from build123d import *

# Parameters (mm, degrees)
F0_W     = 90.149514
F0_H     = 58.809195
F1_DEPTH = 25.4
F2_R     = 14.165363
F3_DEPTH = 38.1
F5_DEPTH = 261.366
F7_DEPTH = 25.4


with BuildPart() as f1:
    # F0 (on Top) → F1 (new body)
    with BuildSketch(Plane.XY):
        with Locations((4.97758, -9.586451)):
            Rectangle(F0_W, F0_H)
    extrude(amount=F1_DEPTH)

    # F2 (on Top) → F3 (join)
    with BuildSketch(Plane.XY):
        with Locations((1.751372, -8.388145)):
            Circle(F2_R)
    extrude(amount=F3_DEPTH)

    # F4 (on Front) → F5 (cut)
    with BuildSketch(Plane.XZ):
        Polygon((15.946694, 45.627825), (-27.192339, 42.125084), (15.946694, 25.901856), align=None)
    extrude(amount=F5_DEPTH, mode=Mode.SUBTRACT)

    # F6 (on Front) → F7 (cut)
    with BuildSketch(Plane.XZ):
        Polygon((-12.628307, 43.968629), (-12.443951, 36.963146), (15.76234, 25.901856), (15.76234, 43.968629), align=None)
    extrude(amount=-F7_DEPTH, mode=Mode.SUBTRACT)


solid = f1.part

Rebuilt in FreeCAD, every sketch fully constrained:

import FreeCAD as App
import Part
import Sketcher


def add_polygon(sketch, points):
    """Adds a closed chain of lines whose ends are joined by coincident constraints."""
    first, n = sketch.GeometryCount, len(points)
    for a, b in zip(points, points[1:] + points[:1]):
        sketch.addGeometry(Part.LineSegment(App.Vector(*a, 0), App.Vector(*b, 0)), False)
    for i in range(n):
        sketch.addConstraint(Sketcher.Constraint("Coincident", first + i, 2, first + (i + 1) % n, 1))

doc = App.newDocument("Part")
params = doc.addObject("Spreadsheet::Sheet", "Params")
for row, (alias, value) in enumerate([
    ("pad1_length", "1 in"),
    ("pad2_length", "1.5 in"),
    ("pocket1_length", "10.29 in"),
    ("pocket2_length", "1 in"),
], start=1):
    params.set(f"A{row}", alias)
    params.set(f"B{row}", "=" + value)
    params.setAlias(f"B{row}", alias)

body = doc.addObject("PartDesign::Body", "Body")

sketch1 = doc.addObject("Sketcher::SketchObject", "Sketch")
body.addObject(sketch1)
sketch1.AttachmentSupport = (doc.XY_Plane, [""])
sketch1.MapMode = "FlatFace"
add_polygon(sketch1, [(-40, 20), (-40, -39), (50, -39), (50, 20)])
sketch1.addConstraint(Sketcher.Constraint("Vertical", 0))
sketch1.addConstraint(Sketcher.Constraint("Horizontal", 1))
sketch1.addConstraint(Sketcher.Constraint("Vertical", 2))
sketch1.addConstraint(Sketcher.Constraint("Horizontal", 3))
sketch1.addConstraint(Sketcher.Constraint("DistanceX", 1, 1, 1, 2, 90.149514))
sketch1.addConstraint(Sketcher.Constraint("DistanceY", 0, 2, 0, 1, 58.809195))
sketch1.addConstraint(Sketcher.Constraint("DistanceY", 0, 2, -1, 1, 38.991048))
sketch1.addConstraint(Sketcher.Constraint("DistanceX", 0, 2, -1, 1, 40.097177))
pad1 = doc.addObject("PartDesign::Pad", "Pad")
body.addObject(pad1)
pad1.Profile = sketch1
pad1.setExpression("Length", "Params.pad1_length")

sketch2 = doc.addObject("Sketcher::SketchObject", "Sketch001")
body.addObject(sketch2)
sketch2.AttachmentSupport = (doc.XY_Plane, [""])
sketch2.MapMode = "FlatFace"
sketch2.addGeometry(Part.Circle(App.Vector(2, -8, 0), App.Vector(0, 0, 1), 14), False)
sketch2.addConstraint(Sketcher.Constraint("Diameter", 0, 28.330726))
sketch2.addConstraint(Sketcher.Constraint("DistanceX", -1, 1, 0, 3, 1.751372))
sketch2.addConstraint(Sketcher.Constraint("DistanceY", 0, 3, -1, 1, 8.388145))
pad2 = doc.addObject("PartDesign::Pad", "Pad001")
body.addObject(pad2)
pad2.Profile = sketch2
pad2.setExpression("Length", "Params.pad2_length")

sketch3 = doc.addObject("Sketcher::SketchObject", "Sketch002")
body.addObject(sketch3)
sketch3.AttachmentSupport = (doc.XZ_Plane, [""])
sketch3.MapMode = "FlatFace"
add_polygon(sketch3, [(16, 46), (-27, 42), (16, 26)])
sketch3.addConstraint(Sketcher.Constraint("Vertical", 2))
sketch3.addConstraint(Sketcher.Constraint("DistanceY", 2, 1, 2, 2, 19.725969))
sketch3.addConstraint(Sketcher.Constraint("Distance", 1, 46.088711))
sketch3.addConstraint(Sketcher.Constraint("DistanceX", 0, 2, -1, 1, 27.192339))
sketch3.addConstraint(Sketcher.Constraint("DistanceY", 1, 2, 0, 2, 16.223228))
sketch3.addConstraint(Sketcher.Constraint("DistanceY", -1, 1, 0, 2, 42.125084))
pocket1 = doc.addObject("PartDesign::Pocket", "Pocket")
body.addObject(pocket1)
pocket1.Profile = sketch3
pocket1.setExpression("Length", "Params.pocket1_length")
pocket1.Reversed = True

sketch4 = doc.addObject("Sketcher::SketchObject", "Sketch003")
body.addObject(sketch4)
sketch4.AttachmentSupport = (doc.XZ_Plane, [""])
sketch4.MapMode = "FlatFace"
add_polygon(sketch4, [(-13, 44), (-12, 37), (16, 26), (16, 44)])
sketch4.addConstraint(Sketcher.Constraint("Vertical", 2))
sketch4.addConstraint(Sketcher.Constraint("Horizontal", 3))
sketch4.addConstraint(Sketcher.Constraint("Distance", 0, 7.007908))
sketch4.addConstraint(Sketcher.Constraint("Distance", 1, 30.29764))
sketch4.addConstraint(Sketcher.Constraint("DistanceX", 3, 2, 3, 1, 28.390647))
sketch4.addConstraint(Sketcher.Constraint("DistanceY", 2, 1, 2, 2, 18.066773))
sketch4.addConstraint(Sketcher.Constraint("DistanceX", 0, 2, -1, 1, 12.443951))
sketch4.addConstraint(Sketcher.Constraint("DistanceY", -1, 1, 2, 2, 43.968629))
pocket2 = doc.addObject("PartDesign::Pocket", "Pocket001")
body.addObject(pocket2)
pocket2.Profile = sketch4
pocket2.setExpression("Length", "Params.pocket2_length")

doc.recompute()
